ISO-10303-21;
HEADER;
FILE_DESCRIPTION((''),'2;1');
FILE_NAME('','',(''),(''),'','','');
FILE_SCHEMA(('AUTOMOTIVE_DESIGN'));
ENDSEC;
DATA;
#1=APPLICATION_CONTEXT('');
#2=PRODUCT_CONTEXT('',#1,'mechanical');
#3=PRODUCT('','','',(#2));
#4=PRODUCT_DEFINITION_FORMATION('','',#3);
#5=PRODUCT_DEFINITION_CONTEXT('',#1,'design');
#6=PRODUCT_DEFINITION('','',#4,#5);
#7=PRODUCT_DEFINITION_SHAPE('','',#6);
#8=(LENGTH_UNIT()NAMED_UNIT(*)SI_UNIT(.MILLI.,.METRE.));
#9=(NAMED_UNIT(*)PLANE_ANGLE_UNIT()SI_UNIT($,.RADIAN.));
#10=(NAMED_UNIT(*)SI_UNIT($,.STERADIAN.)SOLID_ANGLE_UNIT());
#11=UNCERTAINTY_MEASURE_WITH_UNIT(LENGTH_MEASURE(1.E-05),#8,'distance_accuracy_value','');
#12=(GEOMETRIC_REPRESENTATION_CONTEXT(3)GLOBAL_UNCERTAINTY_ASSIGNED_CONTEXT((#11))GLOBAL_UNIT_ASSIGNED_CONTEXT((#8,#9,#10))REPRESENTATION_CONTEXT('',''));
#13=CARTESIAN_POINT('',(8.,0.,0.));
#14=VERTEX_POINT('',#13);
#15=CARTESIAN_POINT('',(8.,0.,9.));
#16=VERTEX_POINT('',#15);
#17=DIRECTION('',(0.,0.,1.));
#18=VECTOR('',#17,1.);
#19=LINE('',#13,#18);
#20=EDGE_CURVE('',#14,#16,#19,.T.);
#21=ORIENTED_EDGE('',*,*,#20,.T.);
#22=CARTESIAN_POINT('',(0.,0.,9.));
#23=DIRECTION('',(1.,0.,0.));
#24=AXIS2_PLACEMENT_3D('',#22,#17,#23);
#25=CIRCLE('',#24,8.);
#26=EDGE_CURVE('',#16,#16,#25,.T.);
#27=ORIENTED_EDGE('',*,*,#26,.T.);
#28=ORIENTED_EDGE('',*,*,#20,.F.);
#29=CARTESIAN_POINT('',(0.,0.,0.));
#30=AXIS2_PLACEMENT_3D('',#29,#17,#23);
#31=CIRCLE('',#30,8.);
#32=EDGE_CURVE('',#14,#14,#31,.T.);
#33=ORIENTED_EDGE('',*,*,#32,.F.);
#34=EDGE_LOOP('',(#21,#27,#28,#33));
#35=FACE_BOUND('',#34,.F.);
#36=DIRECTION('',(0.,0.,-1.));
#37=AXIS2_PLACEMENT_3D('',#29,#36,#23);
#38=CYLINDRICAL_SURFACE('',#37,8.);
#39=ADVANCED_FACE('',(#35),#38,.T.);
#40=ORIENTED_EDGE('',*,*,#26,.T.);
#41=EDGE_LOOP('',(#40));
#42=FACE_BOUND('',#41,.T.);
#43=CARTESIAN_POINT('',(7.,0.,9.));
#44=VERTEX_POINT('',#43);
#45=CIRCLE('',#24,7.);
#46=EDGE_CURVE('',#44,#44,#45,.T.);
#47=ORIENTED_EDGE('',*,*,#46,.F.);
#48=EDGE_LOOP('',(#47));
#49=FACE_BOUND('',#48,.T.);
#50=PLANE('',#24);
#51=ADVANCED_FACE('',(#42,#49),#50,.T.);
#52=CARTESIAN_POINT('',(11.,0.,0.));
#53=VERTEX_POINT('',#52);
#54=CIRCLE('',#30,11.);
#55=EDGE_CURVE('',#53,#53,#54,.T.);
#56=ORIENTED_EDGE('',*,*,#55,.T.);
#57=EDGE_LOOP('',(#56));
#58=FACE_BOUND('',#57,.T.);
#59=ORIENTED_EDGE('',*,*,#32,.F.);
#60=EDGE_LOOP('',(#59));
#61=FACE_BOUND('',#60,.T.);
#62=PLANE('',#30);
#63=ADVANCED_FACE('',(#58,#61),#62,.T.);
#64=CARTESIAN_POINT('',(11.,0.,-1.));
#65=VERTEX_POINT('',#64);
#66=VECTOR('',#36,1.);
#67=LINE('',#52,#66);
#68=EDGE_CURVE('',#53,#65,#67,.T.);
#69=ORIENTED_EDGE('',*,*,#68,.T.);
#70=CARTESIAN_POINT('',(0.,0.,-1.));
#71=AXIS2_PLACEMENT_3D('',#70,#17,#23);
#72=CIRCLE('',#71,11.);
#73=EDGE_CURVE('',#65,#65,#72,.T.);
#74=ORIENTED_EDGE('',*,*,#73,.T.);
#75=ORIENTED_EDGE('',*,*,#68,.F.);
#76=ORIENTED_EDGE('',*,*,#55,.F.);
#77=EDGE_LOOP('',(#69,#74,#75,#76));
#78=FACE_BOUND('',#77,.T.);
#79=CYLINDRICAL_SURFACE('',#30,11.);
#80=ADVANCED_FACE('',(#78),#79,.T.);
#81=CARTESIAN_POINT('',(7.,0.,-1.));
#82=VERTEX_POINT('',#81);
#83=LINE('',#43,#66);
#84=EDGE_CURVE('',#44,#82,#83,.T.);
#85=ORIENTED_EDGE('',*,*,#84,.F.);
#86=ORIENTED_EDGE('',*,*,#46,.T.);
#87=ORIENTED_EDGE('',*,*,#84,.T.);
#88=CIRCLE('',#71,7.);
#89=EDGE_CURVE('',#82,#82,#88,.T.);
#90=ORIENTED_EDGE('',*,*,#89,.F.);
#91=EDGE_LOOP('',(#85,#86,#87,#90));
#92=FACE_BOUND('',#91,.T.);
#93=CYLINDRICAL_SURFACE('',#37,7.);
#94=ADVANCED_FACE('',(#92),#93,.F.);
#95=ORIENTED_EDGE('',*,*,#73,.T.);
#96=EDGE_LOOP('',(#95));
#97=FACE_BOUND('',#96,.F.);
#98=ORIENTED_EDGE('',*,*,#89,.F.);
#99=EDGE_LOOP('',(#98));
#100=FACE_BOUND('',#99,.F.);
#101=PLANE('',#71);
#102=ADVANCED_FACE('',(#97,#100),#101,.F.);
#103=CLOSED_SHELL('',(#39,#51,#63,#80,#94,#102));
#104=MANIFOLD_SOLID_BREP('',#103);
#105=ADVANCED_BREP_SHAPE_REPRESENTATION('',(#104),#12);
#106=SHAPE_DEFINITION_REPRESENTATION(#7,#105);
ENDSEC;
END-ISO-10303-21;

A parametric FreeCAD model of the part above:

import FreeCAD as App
import Part
import Sketcher
from FreeCAD import Vector

doc = App.newDocument("Part")
body = doc.addObject("PartDesign::Body", "Body")

# Sketch on XY plane
sketch1 = doc.addObject("Sketcher::SketchObject", "Sketch")
body.addObject(sketch1)
sketch1.AttachmentSupport = (doc.XY_Plane, [""])
sketch1.MapMode = "FlatFace"
sketch1.addGeometry([
    Part.Circle(Vector(0, 0, 0), Vector(0, 0, 1), 8),
    Part.Circle(Vector(0, 0, 0), Vector(0, 0, 1), 7),
], False)
sketch1.addConstraint([
    Sketcher.Constraint("Coincident", 0, 3, -1, 1),
    Sketcher.Constraint("Coincident", 1, 3, -1, 1),
    Sketcher.Constraint("Diameter", 0, 16.0),
    Sketcher.Constraint("Diameter", 1, 14.0),
])
pad1 = doc.addObject("PartDesign::Pad", "Pad")
body.addObject(pad1)
pad1.Profile = sketch1
pad1.Length = 9

# Sketch on XY plane
sketch2 = doc.addObject("Sketcher::SketchObject", "Sketch001")
body.addObject(sketch2)
sketch2.AttachmentSupport = (doc.XY_Plane, [""])
sketch2.MapMode = "FlatFace"
sketch2.addGeometry([
    Part.Circle(Vector(0, 0, 0), Vector(0, 0, 1), 11),
    Part.Circle(Vector(0, 0, 0), Vector(0, 0, 1), 7),
], False)
sketch2.addConstraint([
    Sketcher.Constraint("Coincident", 0, 3, -1, 1),
    Sketcher.Constraint("Coincident", 1, 3, -1, 1),
    Sketcher.Constraint("Diameter", 0, 22.0),
    Sketcher.Constraint("Diameter", 1, 14.0),
])
pad2 = doc.addObject("PartDesign::Pad", "Pad001")
body.addObject(pad2)
pad2.Profile = sketch2
pad2.Length = 1
pad2.Reversed = True

doc.recompute()
